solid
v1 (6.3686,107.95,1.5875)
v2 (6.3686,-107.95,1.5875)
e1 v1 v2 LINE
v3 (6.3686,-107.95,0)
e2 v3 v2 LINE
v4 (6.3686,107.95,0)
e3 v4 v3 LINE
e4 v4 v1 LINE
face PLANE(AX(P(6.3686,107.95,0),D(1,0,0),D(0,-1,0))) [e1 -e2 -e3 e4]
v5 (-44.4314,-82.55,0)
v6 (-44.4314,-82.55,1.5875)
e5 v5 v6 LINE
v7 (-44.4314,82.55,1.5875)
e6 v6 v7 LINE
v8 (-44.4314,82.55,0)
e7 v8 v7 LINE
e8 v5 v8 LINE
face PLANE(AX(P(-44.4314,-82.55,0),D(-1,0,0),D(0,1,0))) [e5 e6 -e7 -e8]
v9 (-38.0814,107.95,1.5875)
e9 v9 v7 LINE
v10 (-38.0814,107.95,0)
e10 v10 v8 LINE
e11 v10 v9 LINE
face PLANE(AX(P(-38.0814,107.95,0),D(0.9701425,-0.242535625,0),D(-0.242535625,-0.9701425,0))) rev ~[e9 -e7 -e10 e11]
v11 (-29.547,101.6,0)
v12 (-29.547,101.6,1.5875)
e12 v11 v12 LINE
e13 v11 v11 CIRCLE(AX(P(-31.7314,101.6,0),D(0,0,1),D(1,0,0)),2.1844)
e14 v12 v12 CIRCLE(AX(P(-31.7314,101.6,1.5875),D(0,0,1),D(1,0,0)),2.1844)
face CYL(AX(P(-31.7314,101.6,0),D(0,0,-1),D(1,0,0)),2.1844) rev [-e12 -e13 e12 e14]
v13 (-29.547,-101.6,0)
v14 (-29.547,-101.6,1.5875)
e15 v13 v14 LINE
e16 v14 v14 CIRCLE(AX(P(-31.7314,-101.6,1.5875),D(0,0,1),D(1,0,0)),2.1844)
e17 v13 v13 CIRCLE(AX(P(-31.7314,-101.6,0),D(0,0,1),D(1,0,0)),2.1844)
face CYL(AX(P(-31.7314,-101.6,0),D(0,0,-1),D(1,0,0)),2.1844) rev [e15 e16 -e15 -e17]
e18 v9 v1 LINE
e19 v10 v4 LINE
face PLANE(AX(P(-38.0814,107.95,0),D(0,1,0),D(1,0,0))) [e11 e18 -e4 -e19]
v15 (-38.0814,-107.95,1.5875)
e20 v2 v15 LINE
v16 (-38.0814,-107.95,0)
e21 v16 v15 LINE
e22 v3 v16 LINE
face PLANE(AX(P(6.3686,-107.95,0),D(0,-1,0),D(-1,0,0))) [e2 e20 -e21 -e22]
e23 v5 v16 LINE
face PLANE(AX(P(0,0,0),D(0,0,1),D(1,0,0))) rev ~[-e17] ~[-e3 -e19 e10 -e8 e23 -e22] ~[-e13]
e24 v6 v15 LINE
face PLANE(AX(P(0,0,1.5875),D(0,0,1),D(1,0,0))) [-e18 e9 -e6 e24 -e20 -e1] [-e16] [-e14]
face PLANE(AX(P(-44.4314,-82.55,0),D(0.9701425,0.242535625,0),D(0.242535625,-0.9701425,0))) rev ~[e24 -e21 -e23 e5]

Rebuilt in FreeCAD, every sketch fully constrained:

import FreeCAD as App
import Part
import Sketcher

V = App.Vector
Q = App.Units.Quantity


def add_polygon(sketch, points):
    """Adds a closed chain of lines whose ends are joined by coincident constraints."""
    first, n = sketch.GeometryCount, len(points)
    for a, b in zip(points, points[1:] + points[:1]):
        sketch.addGeometry(Part.LineSegment(App.Vector(*a, 0), App.Vector(*b, 0)), False)
    for i in range(n):
        sketch.addConstraint(Sketcher.Constraint("Coincident", first + i, 2, first + (i + 1) % n, 1))

doc = App.newDocument("Part")
body = doc.addObject("PartDesign::Body", "Body")

# Sketch on XY plane
sketch1 = doc.addObject("Sketcher::SketchObject", "Sketch")
body.addObject(sketch1)
sketch1.AttachmentSupport = (doc.XY_Plane, [""])
sketch1.MapMode = "FlatFace"
add_polygon(sketch1, [(-38.0814, -107.95), (6.3686, -107.95), (6.3686, 107.95), (-38.0814, 107.95), (-44.4314, 82.55), (-44.4314, -82.55)])  # lines 0-5
sketch1.addGeometry(Part.Circle(V(-31.7314, -101.6, 0), V(0, 0, 1), 2.1844), False)  # 6
sketch1.addGeometry(Part.Circle(V(-31.7314, 101.6, 0), V(0, 0, 1), 2.1844), False)  # 7
sketch1.addConstraint([
    Sketcher.Constraint("Horizontal", 0),
    Sketcher.Constraint("Vertical", 1),
    Sketcher.Constraint("Horizontal", 2),
    Sketcher.Constraint("Vertical", 4),
    Sketcher.Constraint("Equal", 6, 7),
    Sketcher.Constraint("Symmetric", 6, 3, 7, 3, -1),
    Sketcher.Constraint("Symmetric", 2, 2, 5, 2, -1),
    Sketcher.Constraint("Equal", 3, 5),
    Sketcher.Constraint("Diameter", 6, Q("0.172 in")),
    Sketcher.Constraint("DistanceY", 1, 1, 1, 2, Q("8.5 in")),
    Sketcher.Constraint("DistanceY", 3, 2, 2, 2, Q("1 in")),
    Sketcher.Constraint("DistanceX", 3, 2, 1, 2, Q("2 in")),
    Sketcher.Constraint("DistanceX", 3, 2, 7, 3, Q("0.5 in")),
    Sketcher.Constraint("DistanceY", 0, 2, 6, 3, Q("0.25 in")),
    Sketcher.Constraint("DistanceX", 2, 2, 7, 3, Q("0.25 in")),
    Sketcher.Constraint("DistanceX", 6, 3, -1, 1, 31.7314),
])
pad1 = doc.addObject("PartDesign::Pad", "Pad")
body.addObject(pad1)
pad1.Profile = sketch1
pad1.Length = Q("0.0625 in")

doc.recompute()
